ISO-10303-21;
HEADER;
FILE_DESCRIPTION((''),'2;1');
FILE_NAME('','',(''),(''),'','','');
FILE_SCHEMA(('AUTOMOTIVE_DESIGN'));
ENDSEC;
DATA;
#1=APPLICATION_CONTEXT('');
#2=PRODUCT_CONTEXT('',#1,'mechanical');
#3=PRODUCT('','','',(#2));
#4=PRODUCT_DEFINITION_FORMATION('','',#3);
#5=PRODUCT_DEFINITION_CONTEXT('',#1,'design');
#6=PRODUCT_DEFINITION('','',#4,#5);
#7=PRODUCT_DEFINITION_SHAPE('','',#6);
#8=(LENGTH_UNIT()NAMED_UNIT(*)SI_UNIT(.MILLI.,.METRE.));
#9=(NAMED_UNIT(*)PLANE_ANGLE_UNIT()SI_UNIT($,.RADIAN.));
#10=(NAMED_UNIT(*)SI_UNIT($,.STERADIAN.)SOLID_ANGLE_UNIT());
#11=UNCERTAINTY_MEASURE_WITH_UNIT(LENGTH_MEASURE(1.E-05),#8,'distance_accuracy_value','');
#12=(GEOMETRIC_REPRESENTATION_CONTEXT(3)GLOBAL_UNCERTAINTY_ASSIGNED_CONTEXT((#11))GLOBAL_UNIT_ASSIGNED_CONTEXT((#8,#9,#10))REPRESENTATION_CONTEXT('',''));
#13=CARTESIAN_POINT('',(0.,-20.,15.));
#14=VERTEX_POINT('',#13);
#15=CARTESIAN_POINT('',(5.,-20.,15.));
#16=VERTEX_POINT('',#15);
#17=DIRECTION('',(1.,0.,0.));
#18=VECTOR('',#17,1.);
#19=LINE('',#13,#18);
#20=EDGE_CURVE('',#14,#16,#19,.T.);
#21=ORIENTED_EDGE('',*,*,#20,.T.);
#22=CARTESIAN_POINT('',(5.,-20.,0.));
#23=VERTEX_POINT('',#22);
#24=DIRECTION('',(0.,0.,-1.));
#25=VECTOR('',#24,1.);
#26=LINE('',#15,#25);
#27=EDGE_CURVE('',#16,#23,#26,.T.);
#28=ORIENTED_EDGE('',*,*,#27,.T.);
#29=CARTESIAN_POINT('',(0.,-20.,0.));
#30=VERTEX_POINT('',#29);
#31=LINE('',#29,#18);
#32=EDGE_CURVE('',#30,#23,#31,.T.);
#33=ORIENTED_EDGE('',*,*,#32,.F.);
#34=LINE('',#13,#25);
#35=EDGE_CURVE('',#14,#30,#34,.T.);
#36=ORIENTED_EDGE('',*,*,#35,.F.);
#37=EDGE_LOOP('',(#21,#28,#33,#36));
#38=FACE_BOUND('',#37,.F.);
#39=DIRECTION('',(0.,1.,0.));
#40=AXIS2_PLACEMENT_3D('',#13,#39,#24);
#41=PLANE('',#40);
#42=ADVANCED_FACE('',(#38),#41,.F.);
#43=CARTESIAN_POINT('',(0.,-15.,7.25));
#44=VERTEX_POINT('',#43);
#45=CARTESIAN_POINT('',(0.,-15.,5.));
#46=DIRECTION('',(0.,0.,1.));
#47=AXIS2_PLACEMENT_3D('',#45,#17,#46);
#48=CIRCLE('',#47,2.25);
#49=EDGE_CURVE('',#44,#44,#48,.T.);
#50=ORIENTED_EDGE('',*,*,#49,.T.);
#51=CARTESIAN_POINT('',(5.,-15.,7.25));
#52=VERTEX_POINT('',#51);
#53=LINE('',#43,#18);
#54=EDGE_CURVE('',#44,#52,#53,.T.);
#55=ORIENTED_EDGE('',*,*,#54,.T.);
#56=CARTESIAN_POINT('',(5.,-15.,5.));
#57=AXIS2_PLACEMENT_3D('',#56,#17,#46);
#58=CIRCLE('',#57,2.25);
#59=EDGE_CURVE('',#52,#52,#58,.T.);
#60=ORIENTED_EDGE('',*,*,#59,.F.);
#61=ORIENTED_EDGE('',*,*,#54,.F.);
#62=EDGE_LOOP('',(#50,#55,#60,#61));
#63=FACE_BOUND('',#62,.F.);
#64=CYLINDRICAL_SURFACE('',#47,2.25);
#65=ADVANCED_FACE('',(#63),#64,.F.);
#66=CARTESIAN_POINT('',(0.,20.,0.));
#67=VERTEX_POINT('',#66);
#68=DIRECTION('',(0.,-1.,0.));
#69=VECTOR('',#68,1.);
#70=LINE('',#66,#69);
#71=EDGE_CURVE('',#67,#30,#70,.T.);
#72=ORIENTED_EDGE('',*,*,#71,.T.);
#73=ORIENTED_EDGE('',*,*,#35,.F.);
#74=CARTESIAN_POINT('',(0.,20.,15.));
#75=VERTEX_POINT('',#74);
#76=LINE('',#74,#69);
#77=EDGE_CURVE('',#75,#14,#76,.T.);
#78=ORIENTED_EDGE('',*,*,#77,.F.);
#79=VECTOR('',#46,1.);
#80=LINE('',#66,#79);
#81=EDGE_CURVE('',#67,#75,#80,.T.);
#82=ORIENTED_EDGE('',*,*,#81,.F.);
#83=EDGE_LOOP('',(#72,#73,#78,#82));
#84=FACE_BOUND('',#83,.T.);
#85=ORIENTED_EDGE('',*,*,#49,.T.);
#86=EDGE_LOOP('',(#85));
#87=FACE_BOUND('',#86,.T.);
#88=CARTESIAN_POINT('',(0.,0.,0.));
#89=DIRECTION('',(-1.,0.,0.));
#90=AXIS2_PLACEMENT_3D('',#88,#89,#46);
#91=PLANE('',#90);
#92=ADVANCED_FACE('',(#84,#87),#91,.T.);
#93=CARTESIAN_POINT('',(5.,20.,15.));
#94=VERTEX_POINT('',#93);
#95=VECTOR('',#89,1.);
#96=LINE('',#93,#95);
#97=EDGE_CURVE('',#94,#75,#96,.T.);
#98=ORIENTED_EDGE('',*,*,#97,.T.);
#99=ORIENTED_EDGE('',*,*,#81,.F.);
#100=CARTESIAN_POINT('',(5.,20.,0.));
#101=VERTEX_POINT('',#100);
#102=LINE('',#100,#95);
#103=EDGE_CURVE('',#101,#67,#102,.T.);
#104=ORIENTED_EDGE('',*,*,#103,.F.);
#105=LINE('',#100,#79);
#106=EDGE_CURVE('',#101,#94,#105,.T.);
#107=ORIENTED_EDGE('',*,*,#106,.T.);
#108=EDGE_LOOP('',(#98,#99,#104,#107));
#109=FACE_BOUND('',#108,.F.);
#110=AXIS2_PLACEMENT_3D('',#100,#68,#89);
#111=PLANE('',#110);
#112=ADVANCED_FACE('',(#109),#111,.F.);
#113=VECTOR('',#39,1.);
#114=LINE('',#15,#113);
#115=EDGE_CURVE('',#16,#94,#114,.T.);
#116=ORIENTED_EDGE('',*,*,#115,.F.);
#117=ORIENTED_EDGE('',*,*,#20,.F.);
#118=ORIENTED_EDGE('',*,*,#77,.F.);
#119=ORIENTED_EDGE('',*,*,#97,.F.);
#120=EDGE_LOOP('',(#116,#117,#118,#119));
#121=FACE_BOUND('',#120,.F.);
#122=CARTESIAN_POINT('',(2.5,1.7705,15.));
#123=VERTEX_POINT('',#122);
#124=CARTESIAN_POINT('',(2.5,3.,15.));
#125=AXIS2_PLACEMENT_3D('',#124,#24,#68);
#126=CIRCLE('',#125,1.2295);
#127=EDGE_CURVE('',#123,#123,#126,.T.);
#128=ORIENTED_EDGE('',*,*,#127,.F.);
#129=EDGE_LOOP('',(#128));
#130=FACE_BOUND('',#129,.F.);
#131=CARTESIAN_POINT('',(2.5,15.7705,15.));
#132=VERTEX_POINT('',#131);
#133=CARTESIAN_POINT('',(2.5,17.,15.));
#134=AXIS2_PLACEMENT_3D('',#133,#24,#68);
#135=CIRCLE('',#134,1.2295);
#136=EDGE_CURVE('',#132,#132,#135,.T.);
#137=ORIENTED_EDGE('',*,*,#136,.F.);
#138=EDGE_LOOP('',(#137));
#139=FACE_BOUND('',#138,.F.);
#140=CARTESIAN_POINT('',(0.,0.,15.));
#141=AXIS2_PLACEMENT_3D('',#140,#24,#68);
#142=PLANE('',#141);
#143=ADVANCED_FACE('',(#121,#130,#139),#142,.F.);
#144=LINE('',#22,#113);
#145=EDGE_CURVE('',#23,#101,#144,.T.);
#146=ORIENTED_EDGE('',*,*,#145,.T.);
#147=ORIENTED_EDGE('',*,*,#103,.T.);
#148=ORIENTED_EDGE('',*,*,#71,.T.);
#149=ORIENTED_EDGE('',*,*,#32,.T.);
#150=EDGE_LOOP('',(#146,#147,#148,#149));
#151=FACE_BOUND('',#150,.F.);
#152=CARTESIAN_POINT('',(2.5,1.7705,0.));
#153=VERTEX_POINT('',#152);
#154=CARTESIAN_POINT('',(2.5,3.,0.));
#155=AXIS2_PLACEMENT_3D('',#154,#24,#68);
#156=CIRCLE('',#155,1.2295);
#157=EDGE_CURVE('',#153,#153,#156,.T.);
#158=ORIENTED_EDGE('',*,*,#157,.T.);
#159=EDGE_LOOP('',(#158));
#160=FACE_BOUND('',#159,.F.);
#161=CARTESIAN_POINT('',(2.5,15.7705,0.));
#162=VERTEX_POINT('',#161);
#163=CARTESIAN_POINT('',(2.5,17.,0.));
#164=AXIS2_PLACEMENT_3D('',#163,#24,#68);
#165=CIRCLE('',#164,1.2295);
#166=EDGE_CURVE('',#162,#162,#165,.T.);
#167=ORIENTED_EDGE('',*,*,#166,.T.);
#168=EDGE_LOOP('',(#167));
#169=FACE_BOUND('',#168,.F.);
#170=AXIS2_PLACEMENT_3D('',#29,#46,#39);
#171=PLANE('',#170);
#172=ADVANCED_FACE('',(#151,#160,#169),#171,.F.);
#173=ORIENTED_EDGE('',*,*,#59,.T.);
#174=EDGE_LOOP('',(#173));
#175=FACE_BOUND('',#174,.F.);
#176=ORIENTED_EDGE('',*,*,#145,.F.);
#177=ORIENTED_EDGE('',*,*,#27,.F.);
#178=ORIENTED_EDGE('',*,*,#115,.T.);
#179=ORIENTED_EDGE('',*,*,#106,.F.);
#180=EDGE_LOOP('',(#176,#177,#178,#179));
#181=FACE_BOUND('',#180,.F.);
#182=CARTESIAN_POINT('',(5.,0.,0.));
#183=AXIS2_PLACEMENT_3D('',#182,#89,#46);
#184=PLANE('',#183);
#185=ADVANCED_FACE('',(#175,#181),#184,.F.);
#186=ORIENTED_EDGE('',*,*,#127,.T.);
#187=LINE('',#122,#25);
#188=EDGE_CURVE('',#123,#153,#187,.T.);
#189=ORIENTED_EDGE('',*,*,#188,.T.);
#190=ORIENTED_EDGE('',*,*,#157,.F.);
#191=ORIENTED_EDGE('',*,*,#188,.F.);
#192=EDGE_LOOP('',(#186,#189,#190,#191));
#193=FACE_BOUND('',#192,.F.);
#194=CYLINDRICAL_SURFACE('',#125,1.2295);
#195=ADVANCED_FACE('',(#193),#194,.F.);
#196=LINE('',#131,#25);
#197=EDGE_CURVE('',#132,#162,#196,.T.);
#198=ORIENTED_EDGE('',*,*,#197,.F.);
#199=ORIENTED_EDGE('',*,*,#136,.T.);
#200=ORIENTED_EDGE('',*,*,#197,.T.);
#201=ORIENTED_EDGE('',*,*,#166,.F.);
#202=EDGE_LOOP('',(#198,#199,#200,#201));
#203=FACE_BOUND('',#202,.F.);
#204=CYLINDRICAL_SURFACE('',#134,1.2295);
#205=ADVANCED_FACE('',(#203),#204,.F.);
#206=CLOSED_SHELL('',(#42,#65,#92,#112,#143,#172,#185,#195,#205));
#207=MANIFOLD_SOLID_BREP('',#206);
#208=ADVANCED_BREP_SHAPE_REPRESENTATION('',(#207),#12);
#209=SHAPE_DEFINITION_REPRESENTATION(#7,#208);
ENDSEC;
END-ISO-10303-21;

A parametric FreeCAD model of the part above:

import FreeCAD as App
import Part
import Sketcher
from FreeCAD import Vector


def add_polygon(sketch, points):
    """Adds a closed chain of lines whose ends are joined by coincident constraints."""
    first, n = sketch.GeometryCount, len(points)
    for a, b in zip(points, points[1:] + points[:1]):
        sketch.addGeometry(Part.LineSegment(App.Vector(*a, 0), App.Vector(*b, 0)), False)
    for i in range(n):
        sketch.addConstraint(Sketcher.Constraint("Coincident", first + i, 2, first + (i + 1) % n, 1))

doc = App.newDocument("Part")
body = doc.addObject("PartDesign::Body", "Body")

# Sketch on XY plane
sketch1 = body.newObject("Sketcher::SketchObject", "Sketch")
sketch1.AttachmentSupport = (doc.getObject("XY_Plane"), [""])
sketch1.MapMode = "FlatFace"
add_polygon(sketch1, [(0, 20), (0, 0), (5, 0), (5, 20)])  # lines 0-3
sketch1.addConstraint([
    Sketcher.Constraint("Vertical", 0),
    Sketcher.Constraint("Horizontal", 1),
    Sketcher.Constraint("Vertical", 2),
    Sketcher.Constraint("Horizontal", 3),
    Sketcher.Constraint("Coincident", 0, 2, -1, 1),
    Sketcher.Constraint("DistanceX", 1, 1, 1, 2, 5.0),
    Sketcher.Constraint("DistanceY", 0, 2, 0, 1, 20.0),
])
pad1 = body.newObject("PartDesign::Pad", "Pad")
pad1.Profile = sketch1
pad1.Length = 15

# Sketch on XY plane
sketch2 = body.newObject("Sketcher::SketchObject", "Sketch001")
sketch2.AttachmentSupport = (doc.getObject("XY_Plane"), [""])
sketch2.MapMode = "FlatFace"
sketch2.AttachmentOffset = App.Placement(Vector(0, 0, 15), App.Rotation())
sketch2.addGeometry([
    Part.Circle(Vector(2.5, 17, 0), Vector(0, 0, 1), 1.2295),
    Part.Circle(Vector(2.5, 3, 0), Vector(0, 0, 1), 1.2295),
], False)
sketch2.addConstraint([
    Sketcher.Constraint("Equal", 0, 1),
    Sketcher.Constraint("Vertical", 0, 3, 1, 3),
    Sketcher.Constraint("Diameter", 0, 2.459),
    Sketcher.Constraint("DistanceY", -1, 1, 0, 3, 17.0),
    Sketcher.Constraint("DistanceY", -1, 1, 1, 3, 3.0),
    Sketcher.Constraint("DistanceX", -1, 1, 0, 3, 2.5),
])
doc.recompute()
hole = body.newObject("PartDesign::Hole", "Hole")
hole.Profile = sketch2
hole.ThreadType = "None"
hole.Diameter = 2.459
hole.DepthType = "ThroughAll"

# Sketch on YZ plane
sketch3 = body.newObject("Sketcher::SketchObject", "Sketch002")
sketch3.AttachmentSupport = (doc.getObject("YZ_Plane"), [""])
sketch3.MapMode = "FlatFace"
add_polygon(sketch3, [(0, 15), (0, 0), (-20, 0), (-20, 15)])  # lines 0-3
sketch3.addConstraint([
    Sketcher.Constraint("Vertical", 0),
    Sketcher.Constraint("Horizontal", 1),
    Sketcher.Constraint("Vertical", 2),
    Sketcher.Constraint("Horizontal", 3),
    Sketcher.Constraint("Coincident", 0, 2, -1, 1),
    Sketcher.Constraint("DistanceX", 1, 2, 1, 1, 20.0),
    Sketcher.Constraint("DistanceY", 0, 2, 0, 1, 15.0),
])
pad2 = body.newObject("PartDesign::Pad", "Pad001")
pad2.Profile = sketch3
pad2.Length = 5

# Sketch on YZ plane
sketch4 = body.newObject("Sketcher::SketchObject", "Sketch003")
sketch4.AttachmentSupport = (doc.getObject("YZ_Plane"), [""])
sketch4.MapMode = "FlatFace"
sketch4.addGeometry(Part.Circle(Vector(-15, 5, 0), Vector(0, 0, 1), 2.25), False)
sketch4.addConstraint([
    Sketcher.Constraint("Diameter", 0, 4.5),
    Sketcher.Constraint("DistanceX", 0, 3, -1, 1, 15.0),
    Sketcher.Constraint("DistanceY", -1, 1, 0, 3, 5.0),
])
doc.recompute()
hole2 = body.newObject("PartDesign::Hole", "Hole001")
hole2.Profile = sketch4
hole2.ThreadType = "None"
hole2.Diameter = 4.5
hole2.DepthType = "ThroughAll"
hole2.Reversed = True

doc.recompute()
